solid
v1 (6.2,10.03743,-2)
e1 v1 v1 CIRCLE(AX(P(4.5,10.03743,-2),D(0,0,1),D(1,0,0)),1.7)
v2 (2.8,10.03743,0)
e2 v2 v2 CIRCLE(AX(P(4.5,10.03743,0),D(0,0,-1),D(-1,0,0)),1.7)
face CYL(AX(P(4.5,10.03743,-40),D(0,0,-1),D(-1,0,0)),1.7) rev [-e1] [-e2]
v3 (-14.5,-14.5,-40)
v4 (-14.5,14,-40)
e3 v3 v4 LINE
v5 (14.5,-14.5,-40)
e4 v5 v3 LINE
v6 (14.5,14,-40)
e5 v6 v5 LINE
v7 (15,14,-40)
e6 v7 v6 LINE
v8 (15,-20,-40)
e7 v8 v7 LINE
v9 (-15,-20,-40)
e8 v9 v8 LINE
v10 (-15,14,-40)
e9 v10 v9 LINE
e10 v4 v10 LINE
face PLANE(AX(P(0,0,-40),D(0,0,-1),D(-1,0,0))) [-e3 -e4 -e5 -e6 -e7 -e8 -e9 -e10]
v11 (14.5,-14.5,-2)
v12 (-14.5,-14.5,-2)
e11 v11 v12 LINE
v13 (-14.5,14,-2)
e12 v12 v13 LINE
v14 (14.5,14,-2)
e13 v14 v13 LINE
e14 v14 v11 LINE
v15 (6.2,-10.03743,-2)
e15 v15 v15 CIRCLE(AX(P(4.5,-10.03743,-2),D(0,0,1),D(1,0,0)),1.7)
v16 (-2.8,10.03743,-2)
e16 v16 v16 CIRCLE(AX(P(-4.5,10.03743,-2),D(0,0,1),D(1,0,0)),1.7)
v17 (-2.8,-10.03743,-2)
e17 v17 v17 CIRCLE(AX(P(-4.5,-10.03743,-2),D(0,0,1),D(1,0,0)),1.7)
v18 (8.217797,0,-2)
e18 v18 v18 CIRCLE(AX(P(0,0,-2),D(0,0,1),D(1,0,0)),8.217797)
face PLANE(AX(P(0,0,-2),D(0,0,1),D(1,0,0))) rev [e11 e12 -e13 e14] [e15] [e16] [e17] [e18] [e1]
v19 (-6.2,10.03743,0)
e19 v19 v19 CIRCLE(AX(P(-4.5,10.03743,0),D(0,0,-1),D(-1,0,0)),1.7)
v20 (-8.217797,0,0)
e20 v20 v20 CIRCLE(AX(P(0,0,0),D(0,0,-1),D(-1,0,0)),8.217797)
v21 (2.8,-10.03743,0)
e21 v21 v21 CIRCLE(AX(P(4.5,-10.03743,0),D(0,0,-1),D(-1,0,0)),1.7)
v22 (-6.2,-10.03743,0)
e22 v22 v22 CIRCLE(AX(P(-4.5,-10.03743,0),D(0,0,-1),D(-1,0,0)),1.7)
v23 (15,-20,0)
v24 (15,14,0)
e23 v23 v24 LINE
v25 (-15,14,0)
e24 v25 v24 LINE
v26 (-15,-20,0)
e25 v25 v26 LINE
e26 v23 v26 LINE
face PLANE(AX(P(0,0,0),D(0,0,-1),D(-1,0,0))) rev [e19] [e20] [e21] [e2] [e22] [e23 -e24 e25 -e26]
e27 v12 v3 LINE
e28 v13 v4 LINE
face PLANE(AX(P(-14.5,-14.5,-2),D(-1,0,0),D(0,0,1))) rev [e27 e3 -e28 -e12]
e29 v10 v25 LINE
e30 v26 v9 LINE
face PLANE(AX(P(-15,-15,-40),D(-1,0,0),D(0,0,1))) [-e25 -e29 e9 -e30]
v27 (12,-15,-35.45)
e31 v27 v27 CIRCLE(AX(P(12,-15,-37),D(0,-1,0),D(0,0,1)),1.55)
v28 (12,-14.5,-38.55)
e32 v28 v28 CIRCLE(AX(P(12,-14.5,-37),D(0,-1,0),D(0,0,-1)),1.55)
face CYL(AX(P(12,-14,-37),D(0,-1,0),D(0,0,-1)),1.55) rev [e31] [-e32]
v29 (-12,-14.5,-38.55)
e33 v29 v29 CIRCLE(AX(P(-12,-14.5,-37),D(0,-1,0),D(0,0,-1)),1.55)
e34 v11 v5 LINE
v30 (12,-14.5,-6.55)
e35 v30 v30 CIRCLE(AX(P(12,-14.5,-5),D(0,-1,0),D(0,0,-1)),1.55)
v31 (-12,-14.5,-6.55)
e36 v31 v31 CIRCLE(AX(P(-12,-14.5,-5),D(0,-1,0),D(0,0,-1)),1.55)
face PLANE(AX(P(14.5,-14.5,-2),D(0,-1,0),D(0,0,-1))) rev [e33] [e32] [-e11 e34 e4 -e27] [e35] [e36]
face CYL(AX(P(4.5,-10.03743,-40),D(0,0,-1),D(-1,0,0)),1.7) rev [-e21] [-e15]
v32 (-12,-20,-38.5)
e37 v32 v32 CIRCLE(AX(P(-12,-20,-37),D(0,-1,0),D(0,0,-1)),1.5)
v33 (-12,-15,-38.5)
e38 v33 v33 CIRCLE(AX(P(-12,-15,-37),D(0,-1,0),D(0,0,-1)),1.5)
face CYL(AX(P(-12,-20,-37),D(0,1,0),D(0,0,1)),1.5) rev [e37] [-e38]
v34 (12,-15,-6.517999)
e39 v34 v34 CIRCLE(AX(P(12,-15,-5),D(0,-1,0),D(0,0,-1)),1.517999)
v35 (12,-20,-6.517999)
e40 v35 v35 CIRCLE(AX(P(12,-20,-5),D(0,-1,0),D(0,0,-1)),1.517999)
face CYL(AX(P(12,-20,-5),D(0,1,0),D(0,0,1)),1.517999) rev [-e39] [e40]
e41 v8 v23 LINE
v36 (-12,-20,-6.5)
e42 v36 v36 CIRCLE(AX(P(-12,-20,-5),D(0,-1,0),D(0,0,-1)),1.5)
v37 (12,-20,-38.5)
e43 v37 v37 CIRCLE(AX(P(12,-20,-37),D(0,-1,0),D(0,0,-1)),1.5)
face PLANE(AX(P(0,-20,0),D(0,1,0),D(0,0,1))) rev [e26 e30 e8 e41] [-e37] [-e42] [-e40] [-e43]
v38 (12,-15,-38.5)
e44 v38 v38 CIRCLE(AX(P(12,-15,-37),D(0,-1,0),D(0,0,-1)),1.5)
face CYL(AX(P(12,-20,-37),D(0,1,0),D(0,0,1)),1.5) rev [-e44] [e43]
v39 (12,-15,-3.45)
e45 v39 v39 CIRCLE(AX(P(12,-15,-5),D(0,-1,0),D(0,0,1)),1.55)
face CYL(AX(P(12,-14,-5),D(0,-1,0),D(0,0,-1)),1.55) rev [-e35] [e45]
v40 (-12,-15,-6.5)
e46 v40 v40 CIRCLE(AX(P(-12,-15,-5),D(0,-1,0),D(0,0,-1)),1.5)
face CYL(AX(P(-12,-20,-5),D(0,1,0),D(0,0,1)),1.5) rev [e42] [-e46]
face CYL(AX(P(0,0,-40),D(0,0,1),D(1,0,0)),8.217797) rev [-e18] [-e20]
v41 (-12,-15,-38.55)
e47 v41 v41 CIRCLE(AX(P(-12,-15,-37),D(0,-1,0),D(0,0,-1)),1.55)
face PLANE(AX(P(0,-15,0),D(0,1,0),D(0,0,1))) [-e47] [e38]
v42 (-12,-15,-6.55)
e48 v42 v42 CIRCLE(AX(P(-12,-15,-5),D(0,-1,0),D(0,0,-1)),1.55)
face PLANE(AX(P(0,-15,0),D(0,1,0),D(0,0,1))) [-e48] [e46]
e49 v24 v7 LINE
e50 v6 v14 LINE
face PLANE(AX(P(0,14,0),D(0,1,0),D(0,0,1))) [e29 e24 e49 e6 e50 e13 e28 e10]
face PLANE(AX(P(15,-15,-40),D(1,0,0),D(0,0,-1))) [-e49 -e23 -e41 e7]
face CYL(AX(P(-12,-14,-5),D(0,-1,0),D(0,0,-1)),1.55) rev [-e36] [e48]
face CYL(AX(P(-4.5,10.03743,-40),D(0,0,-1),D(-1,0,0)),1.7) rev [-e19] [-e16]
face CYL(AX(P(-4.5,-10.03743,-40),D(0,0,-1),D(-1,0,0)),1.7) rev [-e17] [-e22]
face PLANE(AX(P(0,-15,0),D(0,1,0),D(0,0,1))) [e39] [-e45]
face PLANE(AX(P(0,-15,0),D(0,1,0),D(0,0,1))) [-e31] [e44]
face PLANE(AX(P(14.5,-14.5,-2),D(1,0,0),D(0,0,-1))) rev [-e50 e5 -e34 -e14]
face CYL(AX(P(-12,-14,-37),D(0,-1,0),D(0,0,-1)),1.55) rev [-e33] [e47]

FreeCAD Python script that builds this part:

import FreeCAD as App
import Part
import Sketcher
Q = App.Units.Quantity

doc = App.newDocument("Part")
body = doc.addObject("PartDesign::Body", "Body")

# Sketch on XY plane
sketch1 = body.newObject("Sketcher::SketchObject", "Sketch")
sketch1.AttachmentSupport = (doc.getObject("XY_Plane"), [""])
sketch1.MapMode = "FlatFace"
sketch1.addGeometry(Part.LineSegment(App.Vector(-15, 15, 0), App.Vector(-15, -15, 0)), False)
sketch1.addGeometry(Part.LineSegment(App.Vector(-15, -15, 0), App.Vector(15, -15, 0)), False)
sketch1.addGeometry(Part.LineSegment(App.Vector(15, -15, 0), App.Vector(15, 15, 0)), False)
sketch1.addGeometry(Part.LineSegment(App.Vector(15, 15, 0), App.Vector(-15, 15, 0)), False)
sketch1.addConstraint(Sketcher.Constraint("Coincident", 0, 2, 1, 1))
sketch1.addConstraint(Sketcher.Constraint("Coincident", 1, 2, 2, 1))
sketch1.addConstraint(Sketcher.Constraint("Coincident", 2, 2, 3, 1))
sketch1.addConstraint(Sketcher.Constraint("Coincident", 3, 2, 0, 1))
sketch1.addConstraint(Sketcher.Constraint("Vertical", 0))
sketch1.addConstraint(Sketcher.Constraint("Horizontal", 1))
sketch1.addConstraint(Sketcher.Constraint("Vertical", 2))
sketch1.addConstraint(Sketcher.Constraint("Horizontal", 3))
sketch1.addConstraint(Sketcher.Constraint("Symmetric", 0, 2, 2, 2, -1, 1))
sketch1.addConstraint(Sketcher.Constraint("Equal", 3, 0))
sketch1.addConstraint(Sketcher.Constraint("DistanceX", 1, 1, 1, 2, Q("30 mm")))
pad1 = body.newObject("PartDesign::Pad", "Pad")
pad1.Profile = sketch1
pad1.Length = 40
pad1.Reversed = True

# Sketch on XY plane
sketch2 = body.newObject("Sketcher::SketchObject", "Sketch001")
sketch2.AttachmentSupport = (doc.getObject("XY_Plane"), [""])
sketch2.MapMode = "FlatFace"
sketch2.AttachmentOffset = App.Placement(App.Vector(0, 0, -40), App.Rotation())
sketch2.addGeometry(Part.LineSegment(App.Vector(14, 14, 0), App.Vector(14, -14, 0)), False)
sketch2.addGeometry(Part.LineSegment(App.Vector(14, -14, 0), App.Vector(-14, -14, 0)), False)
sketch2.addGeometry(Part.LineSegment(App.Vector(-14, -14, 0), App.Vector(-14, 14, 0)), False)
sketch2.addGeometry(Part.LineSegment(App.Vector(-14, 14, 0), App.Vector(14, 14, 0)), False)
sketch2.addConstraint(Sketcher.Constraint("Coincident", 0, 2, 1, 1))
sketch2.addConstraint(Sketcher.Constraint("Coincident", 1, 2, 2, 1))
sketch2.addConstraint(Sketcher.Constraint("Coincident", 2, 2, 3, 1))
sketch2.addConstraint(Sketcher.Constraint("Coincident", 3, 2, 0, 1))
sketch2.addConstraint(Sketcher.Constraint("Vertical", 0))
sketch2.addConstraint(Sketcher.Constraint("Horizontal", 1))
sketch2.addConstraint(Sketcher.Constraint("Vertical", 2))
sketch2.addConstraint(Sketcher.Constraint("Horizontal", 3))
sketch2.addConstraint(Sketcher.Constraint("Symmetric", 0, 2, 2, 2, -1, 1))
sketch2.addConstraint(Sketcher.Constraint("Equal", 3, 0))
sketch2.addConstraint(Sketcher.Constraint("DistanceX", 1, 2, 1, 1, Q("29 mm")))
pocket1 = body.newObject("PartDesign::Pocket", "Pocket")
pocket1.Profile = sketch2
pocket1.Length = 38
pocket1.Reversed = True

# Sketch on XY plane
sketch3 = body.newObject("Sketcher::SketchObject", "Sketch002")
sketch3.AttachmentSupport = (doc.getObject("XY_Plane"), [""])
sketch3.MapMode = "FlatFace"
sketch3.AttachmentOffset = App.Placement(App.Vector(0, 0, -40), App.Rotation())
sketch3.addGeometry(Part.Circle(App.Vector(-4.5, 10, 0), App.Vector(0, 0, 1), 1.7), False)
sketch3.addGeometry(Part.Circle(App.Vector(4.5, 10, 0), App.Vector(0, 0, 1), 1.7), False)
sketch3.addGeometry(Part.Circle(App.Vector(4.5, -10, 0), App.Vector(0, 0, 1), 1.7), False)
sketch3.addGeometry(Part.Circle(App.Vector(-4.5, -10, 0), App.Vector(0, 0, 1), 1.7), False)
sketch3.addConstraint(Sketcher.Constraint("Equal", 0, 1))
sketch3.addConstraint(Sketcher.Constraint("Equal", 1, 2))
sketch3.addConstraint(Sketcher.Constraint("Equal", 2, 3))
sketch3.addConstraint(Sketcher.Constraint("Symmetric", 0, 3, 2, 3, -1, 1))
sketch3.addConstraint(Sketcher.Constraint("Symmetric", 1, 3, 3, 3, -1, 1))
sketch3.addConstraint(Sketcher.Constraint("Symmetric", 0, 3, 1, 3, -2))
sketch3.addConstraint(Sketcher.Constraint("Diameter", 0, Q("3.4 mm")))
sketch3.addConstraint(Sketcher.Constraint("DistanceX", 0, 3, 1, 3, Q("9 mm")))
sketch3.addConstraint(Sketcher.Constraint("DistanceY", -1, 1, 0, 3, Q("10.03743 mm")))
doc.recompute()
hole = body.newObject("PartDesign::Hole", "Hole")
hole.Profile = sketch3
hole.ThreadType = "None"
hole.Diameter = 3.4
hole.DepthType = "ThroughAll"
hole.HoleCutType = "Countersink"
hole.HoleCutDiameter = 6
hole.HoleCutCountersinkAngle = 92
hole.Reversed = True

# Sketch on XZ plane
sketch4 = body.newObject("Sketcher::SketchObject", "Sketch003")
sketch4.AttachmentSupport = (doc.getObject("XZ_Plane"), [""])
sketch4.MapMode = "FlatFace"
sketch4.AttachmentOffset = App.Placement(App.Vector(0, 0, -15), App.Rotation())
sketch4.addGeometry(Part.LineSegment(App.Vector(-15, -40, 0), App.Vector(-15, 0, 0)), False)
sketch4.addGeometry(Part.LineSegment(App.Vector(-15, 0, 0), App.Vector(15, 0, 0)), False)
sketch4.addGeometry(Part.LineSegment(App.Vector(15, 0, 0), App.Vector(15, -40, 0)), False)
sketch4.addGeometry(Part.LineSegment(App.Vector(15, -40, 0), App.Vector(-15, -40, 0)), False)
sketch4.addConstraint(Sketcher.Constraint("Coincident", 0, 2, 1, 1))
sketch4.addConstraint(Sketcher.Constraint("Coincident", 1, 2, 2, 1))
sketch4.addConstraint(Sketcher.Constraint("Coincident", 2, 2, 3, 1))
sketch4.addConstraint(Sketcher.Constraint("Coincident", 3, 2, 0, 1))
sketch4.addConstraint(Sketcher.Constraint("Vertical", 0))
sketch4.addConstraint(Sketcher.Constraint("Horizontal", 1))
sketch4.addConstraint(Sketcher.Constraint("Vertical", 2))
sketch4.addConstraint(Sketcher.Constraint("Horizontal", 3))
sketch4.addConstraint(Sketcher.Constraint("Symmetric", 0, 2, 1, 2, -1, 1))
sketch4.addConstraint(Sketcher.Constraint("DistanceX", 1, 1, 1, 2, Q("30 mm")))
sketch4.addConstraint(Sketcher.Constraint("DistanceY", 0, 1, 0, 2, Q("40 mm")))
pocket2 = body.newObject("PartDesign::Pocket", "Pocket001")
pocket2.Profile = sketch4
pocket2.Length = 1
pocket2.Reversed = True

# Sketch on XZ plane
sketch5 = body.newObject("Sketcher::SketchObject", "Sketch004")
sketch5.AttachmentSupport = (doc.getObject("XZ_Plane"), [""])
sketch5.MapMode = "FlatFace"
sketch5.AttachmentOffset = App.Placement(App.Vector(0, 0, 15), App.Rotation())
sketch5.addGeometry(Part.Circle(App.Vector(-12, -5, 0), App.Vector(0, 0, 1), 1.6), False)
sketch5.addGeometry(Part.Circle(App.Vector(-12, -37, 0), App.Vector(0, 0, 1), 1.6), False)
sketch5.addGeometry(Part.Circle(App.Vector(12, -37, 0), App.Vector(0, 0, 1), 1.6), False)
sketch5.addGeometry(Part.Circle(App.Vector(12, -5, 0), App.Vector(0, 0, 1), 1.6), False)
sketch5.addConstraint(Sketcher.Constraint("Equal", 0, 1))
sketch5.addConstraint(Sketcher.Constraint("Equal", 1, 2))
sketch5.addConstraint(Sketcher.Constraint("Equal", 2, 3))
sketch5.addConstraint(Sketcher.Constraint("Symmetric", 1, 3, 2, 3, -2))
sketch5.addConstraint(Sketcher.Constraint("Symmetric", 0, 3, 3, 3, -2))
sketch5.addConstraint(Sketcher.Constraint("Vertical", 0, 3, 1, 3))
sketch5.addConstraint(Sketcher.Constraint("Diameter", 0, Q("3.1 mm")))
sketch5.addConstraint(Sketcher.Constraint("DistanceX", 0, 3, -1, 1, Q("12 mm")))
sketch5.addConstraint(Sketcher.Constraint("DistanceY", 0, 3, -1, 1, Q("5 mm")))
sketch5.addConstraint(Sketcher.Constraint("DistanceY", 1, 3, -1, 1, Q("37 mm")))
pocket3 = body.newObject("PartDesign::Pocket", "Pocket002")
pocket3.Profile = sketch5
pocket3.Length = 1

# Sketch on XY plane
sketch6 = body.newObject("Sketcher::SketchObject", "Sketch005")
sketch6.AttachmentSupport = (doc.getObject("XY_Plane"), [""])
sketch6.MapMode = "FlatFace"
sketch6.addGeometry(Part.Circle(App.Vector(0, 0, 0), App.Vector(0, 0, 1), 8), False)
sketch6.addConstraint(Sketcher.Constraint("Coincident", 0, 3, -1, 1))
sketch6.addConstraint(Sketcher.Constraint("Diameter", 0, Q("16.435594 mm")))
pocket4 = body.newObject("PartDesign::Pocket", "Pocket003")
pocket4.Profile = sketch6
pocket4.Type = "ThroughAll"
pocket4.Midplane = True

# Sketch on XZ plane
sketch7 = body.newObject("Sketcher::SketchObject", "Sketch006")
sketch7.AttachmentSupport = (doc.getObject("XZ_Plane"), [""])
sketch7.MapMode = "FlatFace"
sketch7.AttachmentOffset = App.Placement(App.Vector(0, 0, 15), App.Rotation())
sketch7.addGeometry(Part.LineSegment(App.Vector(-15, -40, 0), App.Vector(15, -40, 0)), False)
sketch7.addGeometry(Part.LineSegment(App.Vector(15, -40, 0), App.Vector(15, 0, 0)), False)
sketch7.addGeometry(Part.LineSegment(App.Vector(15, 0, 0), App.Vector(-15, 0, 0)), False)
sketch7.addGeometry(Part.LineSegment(App.Vector(-15, 0, 0), App.Vector(-15, -40, 0)), False)
sketch7.addGeometry(Part.Circle(App.Vector(12, -37, 0), App.Vector(0, 0, 1), 1.5), False)
sketch7.addGeometry(Part.Circle(App.Vector(-12, -37, 0), App.Vector(0, 0, 1), 1.5), False)
sketch7.addGeometry(Part.Circle(App.Vector(12, -5, 0), App.Vector(0, 0, 1), 1.5), False)
sketch7.addGeometry(Part.Circle(App.Vector(-12, -5, 0), App.Vector(0, 0, 1), 1.5), False)
sketch7.addConstraint(Sketcher.Constraint("Coincident", 0, 2, 1, 1))
sketch7.addConstraint(Sketcher.Constraint("Coincident", 1, 2, 2, 1))
sketch7.addConstraint(Sketcher.Constraint("Coincident", 2, 2, 3, 1))
sketch7.addConstraint(Sketcher.Constraint("Coincident", 3, 2, 0, 1))
sketch7.addConstraint(Sketcher.Constraint("Horizontal", 0))
sketch7.addConstraint(Sketcher.Constraint("Vertical", 1))
sketch7.addConstraint(Sketcher.Constraint("Horizontal", 2))
sketch7.addConstraint(Sketcher.Constraint("Vertical", 3))
sketch7.addConstraint(Sketcher.Constraint("Equal", 4, 5))
sketch7.addConstraint(Sketcher.Constraint("Equal", 5, 7))
sketch7.addConstraint(Sketcher.Constraint("Symmetric", 1, 2, 2, 2, -1, 1))
sketch7.addConstraint(Sketcher.Constraint("Symmetric", 4, 3, 5, 3, -2))
sketch7.addConstraint(Sketcher.Constraint("Symmetric", 6, 3, 7, 3, -2))
sketch7.addConstraint(Sketcher.Constraint("Vertical", 4, 3, 6, 3))
sketch7.addConstraint(Sketcher.Constraint("Diameter", 4, Q("3 mm")))
sketch7.addConstraint(Sketcher.Constraint("DistanceX", 0, 1, 0, 2, Q("30 mm")))
sketch7.addConstraint(Sketcher.Constraint("DistanceY", 1, 1, 1, 2, Q("40 mm")))
sketch7.addConstraint(Sketcher.Constraint("DistanceX", -1, 1, 4, 3, Q("12 mm")))
sketch7.addConstraint(Sketcher.Constraint("DistanceY", 4, 3, -1, 1, Q("37 mm")))
sketch7.addConstraint(Sketcher.Constraint("DistanceY", 6, 3, -1, 1, Q("5 mm")))
sketch7.addConstraint(Sketcher.Constraint("Diameter", 6, Q("3.035998 mm")))
pad2 = body.newObject("PartDesign::Pad", "Pad001")
pad2.Profile = sketch7
pad2.Length = 5

doc.recompute()
